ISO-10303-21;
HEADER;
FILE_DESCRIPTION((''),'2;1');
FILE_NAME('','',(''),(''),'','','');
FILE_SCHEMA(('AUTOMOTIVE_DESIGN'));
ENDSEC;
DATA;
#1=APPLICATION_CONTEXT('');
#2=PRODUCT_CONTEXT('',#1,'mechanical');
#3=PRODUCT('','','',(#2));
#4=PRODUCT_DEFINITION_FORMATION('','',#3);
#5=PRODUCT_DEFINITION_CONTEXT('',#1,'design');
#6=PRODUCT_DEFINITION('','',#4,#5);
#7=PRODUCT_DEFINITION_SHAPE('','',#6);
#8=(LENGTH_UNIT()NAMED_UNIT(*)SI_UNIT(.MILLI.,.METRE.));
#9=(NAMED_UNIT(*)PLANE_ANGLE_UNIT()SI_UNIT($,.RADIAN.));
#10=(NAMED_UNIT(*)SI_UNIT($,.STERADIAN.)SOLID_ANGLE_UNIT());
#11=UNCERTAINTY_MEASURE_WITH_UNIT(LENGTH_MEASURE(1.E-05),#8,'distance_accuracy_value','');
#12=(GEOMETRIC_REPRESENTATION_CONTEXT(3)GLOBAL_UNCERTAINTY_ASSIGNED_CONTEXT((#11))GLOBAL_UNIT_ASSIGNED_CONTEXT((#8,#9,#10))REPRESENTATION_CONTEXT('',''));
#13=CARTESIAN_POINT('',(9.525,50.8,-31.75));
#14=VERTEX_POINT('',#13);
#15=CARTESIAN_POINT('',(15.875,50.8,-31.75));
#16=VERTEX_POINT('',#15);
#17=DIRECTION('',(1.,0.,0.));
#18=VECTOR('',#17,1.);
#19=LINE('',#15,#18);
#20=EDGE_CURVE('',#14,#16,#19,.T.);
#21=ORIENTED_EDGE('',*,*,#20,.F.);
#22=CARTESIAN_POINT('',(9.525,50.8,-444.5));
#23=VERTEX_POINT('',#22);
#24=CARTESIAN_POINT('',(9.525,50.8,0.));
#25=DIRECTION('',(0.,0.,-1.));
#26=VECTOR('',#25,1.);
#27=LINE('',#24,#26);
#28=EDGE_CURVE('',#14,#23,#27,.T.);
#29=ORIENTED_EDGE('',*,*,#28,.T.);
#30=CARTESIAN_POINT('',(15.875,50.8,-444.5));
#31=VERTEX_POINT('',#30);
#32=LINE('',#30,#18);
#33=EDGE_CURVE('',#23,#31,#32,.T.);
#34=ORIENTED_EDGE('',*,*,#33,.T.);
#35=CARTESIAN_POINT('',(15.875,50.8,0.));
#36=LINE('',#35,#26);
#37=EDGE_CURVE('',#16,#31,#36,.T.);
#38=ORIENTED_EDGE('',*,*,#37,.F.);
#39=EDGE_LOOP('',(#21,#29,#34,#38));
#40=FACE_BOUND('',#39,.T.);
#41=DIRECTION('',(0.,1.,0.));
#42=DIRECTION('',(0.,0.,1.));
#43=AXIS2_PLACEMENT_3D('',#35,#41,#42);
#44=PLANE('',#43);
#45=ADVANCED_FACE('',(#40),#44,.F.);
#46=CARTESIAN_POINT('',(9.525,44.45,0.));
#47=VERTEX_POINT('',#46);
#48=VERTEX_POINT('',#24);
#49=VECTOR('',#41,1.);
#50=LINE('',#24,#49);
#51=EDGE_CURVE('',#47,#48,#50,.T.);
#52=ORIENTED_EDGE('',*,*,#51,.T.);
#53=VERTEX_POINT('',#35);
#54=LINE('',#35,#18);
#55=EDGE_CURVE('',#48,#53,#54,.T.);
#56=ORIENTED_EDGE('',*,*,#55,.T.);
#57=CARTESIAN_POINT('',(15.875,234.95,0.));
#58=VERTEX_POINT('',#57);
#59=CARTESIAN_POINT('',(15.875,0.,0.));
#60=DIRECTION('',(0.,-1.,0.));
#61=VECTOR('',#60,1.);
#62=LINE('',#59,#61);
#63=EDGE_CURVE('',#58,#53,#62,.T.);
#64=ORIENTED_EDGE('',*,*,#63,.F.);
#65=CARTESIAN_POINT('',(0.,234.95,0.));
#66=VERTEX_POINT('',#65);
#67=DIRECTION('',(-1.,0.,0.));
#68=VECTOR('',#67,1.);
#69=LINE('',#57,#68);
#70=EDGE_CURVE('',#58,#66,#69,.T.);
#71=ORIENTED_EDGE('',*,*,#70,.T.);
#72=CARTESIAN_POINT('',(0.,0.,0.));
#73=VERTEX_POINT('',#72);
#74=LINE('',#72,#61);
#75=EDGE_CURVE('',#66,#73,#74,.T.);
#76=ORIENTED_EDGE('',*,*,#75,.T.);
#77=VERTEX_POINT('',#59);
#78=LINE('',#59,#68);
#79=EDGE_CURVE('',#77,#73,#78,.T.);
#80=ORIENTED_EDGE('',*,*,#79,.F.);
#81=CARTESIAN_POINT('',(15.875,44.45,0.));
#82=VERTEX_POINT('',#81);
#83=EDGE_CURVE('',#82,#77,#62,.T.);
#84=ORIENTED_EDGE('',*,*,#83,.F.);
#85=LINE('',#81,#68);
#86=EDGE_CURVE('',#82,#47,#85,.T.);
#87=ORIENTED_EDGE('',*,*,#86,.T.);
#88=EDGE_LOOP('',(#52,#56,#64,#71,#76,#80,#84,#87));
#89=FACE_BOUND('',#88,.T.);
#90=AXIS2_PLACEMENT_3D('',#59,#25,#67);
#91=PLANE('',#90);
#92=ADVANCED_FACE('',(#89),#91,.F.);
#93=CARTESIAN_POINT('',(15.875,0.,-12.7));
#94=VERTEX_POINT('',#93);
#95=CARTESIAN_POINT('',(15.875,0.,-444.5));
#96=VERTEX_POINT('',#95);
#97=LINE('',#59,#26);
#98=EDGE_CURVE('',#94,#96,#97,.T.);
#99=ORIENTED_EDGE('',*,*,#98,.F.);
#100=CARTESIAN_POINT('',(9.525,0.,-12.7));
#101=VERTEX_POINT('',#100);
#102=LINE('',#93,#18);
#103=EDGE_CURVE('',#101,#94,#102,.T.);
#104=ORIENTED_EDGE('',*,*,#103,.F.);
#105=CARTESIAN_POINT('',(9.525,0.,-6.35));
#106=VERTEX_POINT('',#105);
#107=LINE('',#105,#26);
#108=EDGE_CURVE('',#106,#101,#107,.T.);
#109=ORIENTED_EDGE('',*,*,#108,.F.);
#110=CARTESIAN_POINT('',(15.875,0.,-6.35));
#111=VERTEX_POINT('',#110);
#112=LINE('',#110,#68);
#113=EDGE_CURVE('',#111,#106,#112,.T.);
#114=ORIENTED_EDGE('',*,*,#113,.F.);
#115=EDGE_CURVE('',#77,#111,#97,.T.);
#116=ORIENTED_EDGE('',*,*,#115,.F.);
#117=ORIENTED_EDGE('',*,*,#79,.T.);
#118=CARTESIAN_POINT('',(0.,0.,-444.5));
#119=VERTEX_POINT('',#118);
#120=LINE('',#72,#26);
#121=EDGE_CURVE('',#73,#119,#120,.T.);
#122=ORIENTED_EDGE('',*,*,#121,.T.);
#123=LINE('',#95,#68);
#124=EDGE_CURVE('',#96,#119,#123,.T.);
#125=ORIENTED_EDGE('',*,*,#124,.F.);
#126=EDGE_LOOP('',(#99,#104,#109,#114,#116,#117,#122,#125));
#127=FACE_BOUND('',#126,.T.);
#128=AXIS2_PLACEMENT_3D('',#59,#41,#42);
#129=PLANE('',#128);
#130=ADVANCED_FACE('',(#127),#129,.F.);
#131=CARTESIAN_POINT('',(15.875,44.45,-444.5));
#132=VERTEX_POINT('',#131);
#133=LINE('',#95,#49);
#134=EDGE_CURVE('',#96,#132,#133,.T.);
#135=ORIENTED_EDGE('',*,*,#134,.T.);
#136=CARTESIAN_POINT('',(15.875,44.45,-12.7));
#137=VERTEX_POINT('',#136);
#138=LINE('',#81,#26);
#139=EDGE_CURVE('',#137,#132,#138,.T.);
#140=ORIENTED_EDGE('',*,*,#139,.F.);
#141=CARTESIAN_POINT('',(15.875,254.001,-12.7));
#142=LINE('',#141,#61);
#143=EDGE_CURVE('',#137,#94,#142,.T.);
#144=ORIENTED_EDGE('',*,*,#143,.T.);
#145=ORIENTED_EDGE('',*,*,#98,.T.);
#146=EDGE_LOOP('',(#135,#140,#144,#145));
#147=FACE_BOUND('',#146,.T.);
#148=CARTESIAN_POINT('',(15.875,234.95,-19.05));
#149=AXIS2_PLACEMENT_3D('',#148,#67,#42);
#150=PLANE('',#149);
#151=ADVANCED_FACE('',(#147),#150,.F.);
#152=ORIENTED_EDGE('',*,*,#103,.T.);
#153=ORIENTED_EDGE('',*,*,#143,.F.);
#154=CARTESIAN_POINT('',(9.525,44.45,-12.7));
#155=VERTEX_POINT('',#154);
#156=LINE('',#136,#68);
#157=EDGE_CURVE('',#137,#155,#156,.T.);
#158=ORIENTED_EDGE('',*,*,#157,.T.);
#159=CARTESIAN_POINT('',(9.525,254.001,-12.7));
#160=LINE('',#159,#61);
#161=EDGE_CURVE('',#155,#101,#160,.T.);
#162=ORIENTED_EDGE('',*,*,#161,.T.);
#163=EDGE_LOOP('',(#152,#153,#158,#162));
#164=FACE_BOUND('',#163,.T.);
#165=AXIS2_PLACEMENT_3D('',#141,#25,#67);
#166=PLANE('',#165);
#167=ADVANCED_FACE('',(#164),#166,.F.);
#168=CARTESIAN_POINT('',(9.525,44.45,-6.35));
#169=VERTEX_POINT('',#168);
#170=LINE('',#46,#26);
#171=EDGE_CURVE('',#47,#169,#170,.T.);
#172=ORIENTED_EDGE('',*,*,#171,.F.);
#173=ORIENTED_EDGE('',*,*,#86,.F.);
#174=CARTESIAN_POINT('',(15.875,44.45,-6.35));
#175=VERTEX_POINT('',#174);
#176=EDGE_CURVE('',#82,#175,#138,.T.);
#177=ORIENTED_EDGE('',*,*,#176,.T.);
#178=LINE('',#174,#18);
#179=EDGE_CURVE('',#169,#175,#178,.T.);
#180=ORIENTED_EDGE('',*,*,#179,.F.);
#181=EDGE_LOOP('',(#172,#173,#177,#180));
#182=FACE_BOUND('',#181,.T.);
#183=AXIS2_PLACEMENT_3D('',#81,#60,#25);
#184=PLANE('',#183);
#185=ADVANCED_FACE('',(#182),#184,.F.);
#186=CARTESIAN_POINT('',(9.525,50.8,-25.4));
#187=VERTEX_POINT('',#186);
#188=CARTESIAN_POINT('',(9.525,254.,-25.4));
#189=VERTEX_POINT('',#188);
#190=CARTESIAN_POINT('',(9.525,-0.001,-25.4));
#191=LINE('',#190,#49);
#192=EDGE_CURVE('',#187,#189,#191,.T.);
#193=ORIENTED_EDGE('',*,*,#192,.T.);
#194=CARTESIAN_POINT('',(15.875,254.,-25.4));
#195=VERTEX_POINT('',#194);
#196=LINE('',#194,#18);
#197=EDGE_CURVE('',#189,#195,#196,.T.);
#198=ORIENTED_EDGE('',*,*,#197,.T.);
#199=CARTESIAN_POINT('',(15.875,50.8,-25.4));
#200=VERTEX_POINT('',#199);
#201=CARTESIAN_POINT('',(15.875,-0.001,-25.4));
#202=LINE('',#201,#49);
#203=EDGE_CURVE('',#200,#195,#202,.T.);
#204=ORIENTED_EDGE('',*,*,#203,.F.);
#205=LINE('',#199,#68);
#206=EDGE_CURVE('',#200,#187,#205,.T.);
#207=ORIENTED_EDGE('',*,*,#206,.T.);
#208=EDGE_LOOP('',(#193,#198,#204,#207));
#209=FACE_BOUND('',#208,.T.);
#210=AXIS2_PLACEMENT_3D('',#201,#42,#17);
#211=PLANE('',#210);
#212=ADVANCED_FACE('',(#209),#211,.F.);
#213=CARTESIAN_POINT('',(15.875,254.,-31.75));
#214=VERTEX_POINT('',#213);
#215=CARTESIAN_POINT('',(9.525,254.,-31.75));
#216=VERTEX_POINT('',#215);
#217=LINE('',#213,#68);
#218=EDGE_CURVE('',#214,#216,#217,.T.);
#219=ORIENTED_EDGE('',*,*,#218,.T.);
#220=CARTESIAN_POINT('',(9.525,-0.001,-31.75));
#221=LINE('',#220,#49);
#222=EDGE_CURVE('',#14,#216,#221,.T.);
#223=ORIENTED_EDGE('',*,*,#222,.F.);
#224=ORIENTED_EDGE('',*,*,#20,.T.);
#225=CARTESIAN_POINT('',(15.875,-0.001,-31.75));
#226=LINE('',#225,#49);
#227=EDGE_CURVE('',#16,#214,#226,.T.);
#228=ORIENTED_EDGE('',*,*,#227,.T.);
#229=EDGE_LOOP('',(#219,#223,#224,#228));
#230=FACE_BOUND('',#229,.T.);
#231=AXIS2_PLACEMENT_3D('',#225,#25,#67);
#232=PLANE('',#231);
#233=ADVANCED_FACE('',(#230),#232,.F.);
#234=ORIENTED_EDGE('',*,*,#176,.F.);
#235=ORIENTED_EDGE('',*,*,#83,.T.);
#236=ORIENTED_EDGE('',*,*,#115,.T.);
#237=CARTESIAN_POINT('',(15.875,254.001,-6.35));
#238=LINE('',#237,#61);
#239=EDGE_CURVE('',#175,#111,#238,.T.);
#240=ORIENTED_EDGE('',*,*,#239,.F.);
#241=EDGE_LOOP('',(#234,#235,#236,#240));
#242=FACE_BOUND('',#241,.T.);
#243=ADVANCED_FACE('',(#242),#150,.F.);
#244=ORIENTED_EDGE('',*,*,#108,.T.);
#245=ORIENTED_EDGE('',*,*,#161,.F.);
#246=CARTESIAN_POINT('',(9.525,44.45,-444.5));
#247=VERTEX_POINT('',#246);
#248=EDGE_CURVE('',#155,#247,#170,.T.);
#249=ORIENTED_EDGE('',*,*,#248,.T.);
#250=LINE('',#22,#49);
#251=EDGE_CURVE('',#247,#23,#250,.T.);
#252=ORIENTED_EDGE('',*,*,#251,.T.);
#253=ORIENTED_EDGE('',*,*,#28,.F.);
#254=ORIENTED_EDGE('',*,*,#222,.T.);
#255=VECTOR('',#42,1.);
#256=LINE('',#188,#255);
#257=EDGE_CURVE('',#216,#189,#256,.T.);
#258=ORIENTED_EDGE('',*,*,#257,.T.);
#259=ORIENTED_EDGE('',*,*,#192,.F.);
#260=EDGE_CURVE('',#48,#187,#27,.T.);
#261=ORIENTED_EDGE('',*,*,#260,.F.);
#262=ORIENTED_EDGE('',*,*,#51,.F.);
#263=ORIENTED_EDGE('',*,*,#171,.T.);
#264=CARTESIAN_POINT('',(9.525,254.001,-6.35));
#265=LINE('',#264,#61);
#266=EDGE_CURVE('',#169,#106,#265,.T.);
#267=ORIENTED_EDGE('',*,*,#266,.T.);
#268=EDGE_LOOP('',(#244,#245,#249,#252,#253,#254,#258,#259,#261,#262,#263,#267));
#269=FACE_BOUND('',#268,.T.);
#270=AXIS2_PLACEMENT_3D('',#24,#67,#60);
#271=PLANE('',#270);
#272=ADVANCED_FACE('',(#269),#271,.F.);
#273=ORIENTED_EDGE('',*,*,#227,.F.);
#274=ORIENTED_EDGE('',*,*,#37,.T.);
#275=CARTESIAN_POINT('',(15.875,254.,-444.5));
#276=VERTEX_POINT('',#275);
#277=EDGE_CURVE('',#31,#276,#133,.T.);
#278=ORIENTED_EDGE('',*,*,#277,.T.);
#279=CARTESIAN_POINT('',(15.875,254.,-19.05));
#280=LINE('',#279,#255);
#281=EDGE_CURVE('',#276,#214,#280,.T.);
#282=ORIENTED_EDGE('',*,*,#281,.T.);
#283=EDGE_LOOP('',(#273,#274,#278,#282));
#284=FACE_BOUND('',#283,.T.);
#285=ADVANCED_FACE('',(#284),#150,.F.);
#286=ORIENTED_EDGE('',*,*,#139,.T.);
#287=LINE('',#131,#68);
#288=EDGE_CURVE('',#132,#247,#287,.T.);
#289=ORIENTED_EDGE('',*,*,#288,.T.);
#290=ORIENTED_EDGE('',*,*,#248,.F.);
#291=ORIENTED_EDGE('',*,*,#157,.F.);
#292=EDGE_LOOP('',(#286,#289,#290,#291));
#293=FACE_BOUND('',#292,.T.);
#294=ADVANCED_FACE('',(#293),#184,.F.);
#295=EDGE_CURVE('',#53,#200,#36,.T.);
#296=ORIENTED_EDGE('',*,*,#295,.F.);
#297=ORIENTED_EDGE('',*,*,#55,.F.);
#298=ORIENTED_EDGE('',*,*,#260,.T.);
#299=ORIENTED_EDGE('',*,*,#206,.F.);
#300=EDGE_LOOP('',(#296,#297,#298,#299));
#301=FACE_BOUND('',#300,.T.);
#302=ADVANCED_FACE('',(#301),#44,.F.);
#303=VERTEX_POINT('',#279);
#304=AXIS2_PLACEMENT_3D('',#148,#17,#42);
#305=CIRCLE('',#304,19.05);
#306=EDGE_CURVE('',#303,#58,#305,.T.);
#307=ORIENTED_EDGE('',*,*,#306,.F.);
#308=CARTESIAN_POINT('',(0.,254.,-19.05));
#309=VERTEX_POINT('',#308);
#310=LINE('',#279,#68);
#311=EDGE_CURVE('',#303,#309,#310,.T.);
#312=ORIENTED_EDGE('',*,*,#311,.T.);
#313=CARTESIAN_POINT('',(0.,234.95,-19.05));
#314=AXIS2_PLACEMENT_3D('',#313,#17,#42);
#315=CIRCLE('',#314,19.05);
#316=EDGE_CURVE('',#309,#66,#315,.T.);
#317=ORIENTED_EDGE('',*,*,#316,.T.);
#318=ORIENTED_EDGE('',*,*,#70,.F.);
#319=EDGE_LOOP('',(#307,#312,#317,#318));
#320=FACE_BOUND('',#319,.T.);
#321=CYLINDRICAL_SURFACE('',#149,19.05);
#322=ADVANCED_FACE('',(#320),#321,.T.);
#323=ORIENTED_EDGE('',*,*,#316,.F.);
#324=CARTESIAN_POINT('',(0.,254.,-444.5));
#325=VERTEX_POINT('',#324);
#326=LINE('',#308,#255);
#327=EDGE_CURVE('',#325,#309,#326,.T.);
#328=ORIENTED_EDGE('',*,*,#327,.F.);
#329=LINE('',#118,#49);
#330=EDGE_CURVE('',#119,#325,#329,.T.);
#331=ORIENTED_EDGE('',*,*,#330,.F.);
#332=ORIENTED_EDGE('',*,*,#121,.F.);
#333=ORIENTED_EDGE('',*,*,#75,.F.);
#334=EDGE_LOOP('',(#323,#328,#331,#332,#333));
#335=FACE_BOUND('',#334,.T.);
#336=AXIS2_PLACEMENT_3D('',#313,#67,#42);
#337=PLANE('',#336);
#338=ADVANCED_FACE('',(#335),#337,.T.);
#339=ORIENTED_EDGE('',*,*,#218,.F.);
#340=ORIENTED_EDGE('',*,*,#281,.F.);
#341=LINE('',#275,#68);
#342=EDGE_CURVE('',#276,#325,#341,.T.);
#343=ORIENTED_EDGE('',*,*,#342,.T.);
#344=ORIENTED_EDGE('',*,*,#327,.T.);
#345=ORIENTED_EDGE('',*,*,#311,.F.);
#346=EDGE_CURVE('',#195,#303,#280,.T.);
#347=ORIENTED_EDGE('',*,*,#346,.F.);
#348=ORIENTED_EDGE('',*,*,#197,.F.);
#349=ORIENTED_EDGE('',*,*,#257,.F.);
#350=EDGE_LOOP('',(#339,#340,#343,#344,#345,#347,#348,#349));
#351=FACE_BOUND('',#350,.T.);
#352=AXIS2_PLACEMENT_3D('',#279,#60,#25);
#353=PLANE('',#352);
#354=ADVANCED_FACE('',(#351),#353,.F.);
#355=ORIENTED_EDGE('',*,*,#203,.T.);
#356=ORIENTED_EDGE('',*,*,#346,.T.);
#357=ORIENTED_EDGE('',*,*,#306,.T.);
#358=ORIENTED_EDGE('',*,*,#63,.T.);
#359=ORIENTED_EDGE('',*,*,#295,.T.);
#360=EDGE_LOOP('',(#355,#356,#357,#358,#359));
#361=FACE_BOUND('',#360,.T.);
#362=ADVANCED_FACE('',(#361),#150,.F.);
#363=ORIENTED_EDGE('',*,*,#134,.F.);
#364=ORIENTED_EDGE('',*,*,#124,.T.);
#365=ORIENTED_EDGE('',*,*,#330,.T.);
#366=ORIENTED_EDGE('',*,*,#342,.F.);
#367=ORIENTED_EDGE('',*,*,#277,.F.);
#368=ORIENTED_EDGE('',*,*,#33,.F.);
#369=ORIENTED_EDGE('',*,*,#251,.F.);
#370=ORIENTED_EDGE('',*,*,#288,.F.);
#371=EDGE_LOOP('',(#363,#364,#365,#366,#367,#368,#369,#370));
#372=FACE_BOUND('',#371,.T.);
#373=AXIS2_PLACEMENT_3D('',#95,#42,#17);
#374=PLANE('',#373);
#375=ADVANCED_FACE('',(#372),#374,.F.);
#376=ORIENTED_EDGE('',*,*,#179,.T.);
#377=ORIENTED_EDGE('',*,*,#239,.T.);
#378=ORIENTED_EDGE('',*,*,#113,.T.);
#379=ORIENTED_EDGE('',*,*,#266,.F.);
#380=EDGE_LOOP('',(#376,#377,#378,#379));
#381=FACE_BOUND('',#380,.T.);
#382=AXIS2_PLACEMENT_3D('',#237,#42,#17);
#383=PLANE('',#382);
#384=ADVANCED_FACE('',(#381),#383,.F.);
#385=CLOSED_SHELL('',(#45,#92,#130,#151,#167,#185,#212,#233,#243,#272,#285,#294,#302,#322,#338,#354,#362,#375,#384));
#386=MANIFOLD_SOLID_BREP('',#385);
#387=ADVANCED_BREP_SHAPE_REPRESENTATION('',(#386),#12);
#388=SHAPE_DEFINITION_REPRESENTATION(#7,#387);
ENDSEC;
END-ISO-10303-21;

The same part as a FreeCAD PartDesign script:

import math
import FreeCAD as App
import Part
import Sketcher
Q = App.Units.Quantity

doc = App.newDocument("Part")
body = doc.addObject("PartDesign::Body", "Body")

sketch1 = body.newObject("Sketcher::SketchObject", "Sketch")
sketch1.AttachmentSupport = (doc.getObject("YZ_Plane"), [""])
sketch1.MapMode = "FlatFace"
sketch1.addGeometry([
    Part.LineSegment(App.Vector(0, 0, 0), App.Vector(0, -444, 0)),
    Part.LineSegment(App.Vector(0, -444, 0), App.Vector(254, -444, 0)),
    Part.LineSegment(App.Vector(254, -444, 0), App.Vector(254, -19, 0)),
    Part.ArcOfCircle(Part.Circle(App.Vector(235, -19, 0), App.Vector(0, 0, 1), 19), math.radians(0), math.radians(90)),
    Part.LineSegment(App.Vector(235, 0, 0), App.Vector(0, 0, 0)),
], False)
sketch1.addConstraint([
    Sketcher.Constraint("Coincident", 0, 2, 1, 1),
    Sketcher.Constraint("Coincident", 1, 2, 2, 1),
    Sketcher.Constraint("Tangent", 2, 2, 3, 1),
    Sketcher.Constraint("Tangent", 3, 2, 4, 1),
    Sketcher.Constraint("Coincident", 4, 2, 0, 1),
    Sketcher.Constraint("Vertical", 0),
    Sketcher.Constraint("Horizontal", 1),
    Sketcher.Constraint("Vertical", 2),
    Sketcher.Constraint("Horizontal", 4),
    Sketcher.Constraint("Coincident", 4, 2, -1, 1),
    Sketcher.Constraint("DistanceX", 1, 1, 1, 2, Q("10 in")),
    Sketcher.Constraint("Radius", 3, Q("0.75 in")),
    Sketcher.Constraint("DistanceY", 0, 2, 0, 1, Q("17.5 in")),
])
pad1 = body.newObject("PartDesign::Pad", "Pad")
pad1.Profile = sketch1
pad1.Length = Q("0.625 in")

sketch2 = body.newObject("Sketcher::SketchObject", "Sketch001")
sketch2.AttachmentSupport = (doc.getObject("XY_Plane"), [""])
sketch2.MapMode = "FlatFace"
sketch2.AttachmentOffset = App.Placement(App.Vector(0, 0, -17.5 * 25.4), App.Rotation())
sketch2.addGeometry([
    Part.LineSegment(App.Vector(16, 51, 0), App.Vector(16, 44, 0)),
    Part.LineSegment(App.Vector(16, 44, 0), App.Vector(10, 44, 0)),
    Part.LineSegment(App.Vector(10, 44, 0), App.Vector(10, 51, 0)),
    Part.LineSegment(App.Vector(10, 51, 0), App.Vector(16, 51, 0)),
], False)
sketch2.addConstraint([
    Sketcher.Constraint("Coincident", 0, 2, 1, 1),
    Sketcher.Constraint("Coincident", 1, 2, 2, 1),
    Sketcher.Constraint("Coincident", 2, 2, 3, 1),
    Sketcher.Constraint("Coincident", 3, 2, 0, 1),
    Sketcher.Constraint("Vertical", 0),
    Sketcher.Constraint("Horizontal", 1),
    Sketcher.Constraint("Vertical", 2),
    Sketcher.Constraint("Horizontal", 3),
    Sketcher.Constraint("Equal", 3, 0),
    Sketcher.Constraint("DistanceY", -1, 1, 2, 2, Q("2 in")),
    Sketcher.Constraint("DistanceX", 1, 2, 1, 1, Q("0.25 in")),
    Sketcher.Constraint("DistanceX", -1, 1, 0, 2, Q("0.625 in")),
])
pocket1 = body.newObject("PartDesign::Pocket", "Pocket")
pocket1.Profile = sketch2
pocket1.Type = "ThroughAll"
pocket1.Reversed = True

sketch3 = body.newObject("Sketcher::SketchObject", "Sketch002")
sketch3.AttachmentSupport = (doc.getObject("XZ_Plane"), [""])
sketch3.MapMode = "FlatFace"
sketch3.addGeometry([
    Part.LineSegment(App.Vector(10, -6, 0), App.Vector(10, -13, 0)),
    Part.LineSegment(App.Vector(10, -13, 0), App.Vector(16, -13, 0)),
    Part.LineSegment(App.Vector(16, -13, 0), App.Vector(16, -6, 0)),
    Part.LineSegment(App.Vector(16, -6, 0), App.Vector(10, -6, 0)),
], False)
sketch3.addConstraint([
    Sketcher.Constraint("Coincident", 0, 2, 1, 1),
    Sketcher.Constraint("Coincident", 1, 2, 2, 1),
    Sketcher.Constraint("Coincident", 2, 2, 3, 1),
    Sketcher.Constraint("Coincident", 3, 2, 0, 1),
    Sketcher.Constraint("Vertical", 0),
    Sketcher.Constraint("Horizontal", 1),
    Sketcher.Constraint("Vertical", 2),
    Sketcher.Constraint("Horizontal", 3),
    Sketcher.Constraint("Equal", 3, 0),
    Sketcher.Constraint("DistanceX", 1, 1, 1, 2, Q("0.25 in")),
    Sketcher.Constraint("DistanceY", 0, 2, -1, 1, Q("0.5 in")),
    Sketcher.Constraint("DistanceX", -1, 1, 0, 2, Q("0.375 in")),
])
pocket2 = body.newObject("PartDesign::Pocket", "Pocket001")
pocket2.Profile = sketch3
pocket2.Type = "UpToFirst"

sketch4 = body.newObject("Sketcher::SketchObject", "Sketch003")
sketch4.AttachmentSupport = (doc.getObject("XZ_Plane"), [""])
sketch4.MapMode = "FlatFace"
sketch4.AttachmentOffset = App.Placement(App.Vector(0, 0, -10 * 25.4), App.Rotation())
sketch4.addGeometry([
    Part.LineSegment(App.Vector(10, -32, 0), App.Vector(10, -25, 0)),
    Part.LineSegment(App.Vector(10, -25, 0), App.Vector(16, -25, 0)),
    Part.LineSegment(App.Vector(16, -25, 0), App.Vector(16, -32, 0)),
    Part.LineSegment(App.Vector(16, -32, 0), App.Vector(10, -32, 0)),
], False)
sketch4.addConstraint([
    Sketcher.Constraint("Coincident", 0, 2, 1, 1),
    Sketcher.Constraint("Coincident", 1, 2, 2, 1),
    Sketcher.Constraint("Coincident", 2, 2, 3, 1),
    Sketcher.Constraint("Coincident", 3, 2, 0, 1),
    Sketcher.Constraint("Vertical", 0),
    Sketcher.Constraint("Horizontal", 1),
    Sketcher.Constraint("Vertical", 2),
    Sketcher.Constraint("Horizontal", 3),
    Sketcher.Constraint("Equal", 3, 0),
    Sketcher.Constraint("DistanceY", 0, 2, -1, 1, Q("1 in")),
    Sketcher.Constraint("DistanceX", 1, 1, 1, 2, Q("0.25 in")),
    Sketcher.Constraint("DistanceX", -1, 1, 0, 2, Q("0.375 in")),
])
pocket3 = body.newObject("PartDesign::Pocket", "Pocket002")
pocket3.Profile = sketch4
pocket3.Type = "UpToFirst"
pocket3.Reversed = True

doc.recompute()
